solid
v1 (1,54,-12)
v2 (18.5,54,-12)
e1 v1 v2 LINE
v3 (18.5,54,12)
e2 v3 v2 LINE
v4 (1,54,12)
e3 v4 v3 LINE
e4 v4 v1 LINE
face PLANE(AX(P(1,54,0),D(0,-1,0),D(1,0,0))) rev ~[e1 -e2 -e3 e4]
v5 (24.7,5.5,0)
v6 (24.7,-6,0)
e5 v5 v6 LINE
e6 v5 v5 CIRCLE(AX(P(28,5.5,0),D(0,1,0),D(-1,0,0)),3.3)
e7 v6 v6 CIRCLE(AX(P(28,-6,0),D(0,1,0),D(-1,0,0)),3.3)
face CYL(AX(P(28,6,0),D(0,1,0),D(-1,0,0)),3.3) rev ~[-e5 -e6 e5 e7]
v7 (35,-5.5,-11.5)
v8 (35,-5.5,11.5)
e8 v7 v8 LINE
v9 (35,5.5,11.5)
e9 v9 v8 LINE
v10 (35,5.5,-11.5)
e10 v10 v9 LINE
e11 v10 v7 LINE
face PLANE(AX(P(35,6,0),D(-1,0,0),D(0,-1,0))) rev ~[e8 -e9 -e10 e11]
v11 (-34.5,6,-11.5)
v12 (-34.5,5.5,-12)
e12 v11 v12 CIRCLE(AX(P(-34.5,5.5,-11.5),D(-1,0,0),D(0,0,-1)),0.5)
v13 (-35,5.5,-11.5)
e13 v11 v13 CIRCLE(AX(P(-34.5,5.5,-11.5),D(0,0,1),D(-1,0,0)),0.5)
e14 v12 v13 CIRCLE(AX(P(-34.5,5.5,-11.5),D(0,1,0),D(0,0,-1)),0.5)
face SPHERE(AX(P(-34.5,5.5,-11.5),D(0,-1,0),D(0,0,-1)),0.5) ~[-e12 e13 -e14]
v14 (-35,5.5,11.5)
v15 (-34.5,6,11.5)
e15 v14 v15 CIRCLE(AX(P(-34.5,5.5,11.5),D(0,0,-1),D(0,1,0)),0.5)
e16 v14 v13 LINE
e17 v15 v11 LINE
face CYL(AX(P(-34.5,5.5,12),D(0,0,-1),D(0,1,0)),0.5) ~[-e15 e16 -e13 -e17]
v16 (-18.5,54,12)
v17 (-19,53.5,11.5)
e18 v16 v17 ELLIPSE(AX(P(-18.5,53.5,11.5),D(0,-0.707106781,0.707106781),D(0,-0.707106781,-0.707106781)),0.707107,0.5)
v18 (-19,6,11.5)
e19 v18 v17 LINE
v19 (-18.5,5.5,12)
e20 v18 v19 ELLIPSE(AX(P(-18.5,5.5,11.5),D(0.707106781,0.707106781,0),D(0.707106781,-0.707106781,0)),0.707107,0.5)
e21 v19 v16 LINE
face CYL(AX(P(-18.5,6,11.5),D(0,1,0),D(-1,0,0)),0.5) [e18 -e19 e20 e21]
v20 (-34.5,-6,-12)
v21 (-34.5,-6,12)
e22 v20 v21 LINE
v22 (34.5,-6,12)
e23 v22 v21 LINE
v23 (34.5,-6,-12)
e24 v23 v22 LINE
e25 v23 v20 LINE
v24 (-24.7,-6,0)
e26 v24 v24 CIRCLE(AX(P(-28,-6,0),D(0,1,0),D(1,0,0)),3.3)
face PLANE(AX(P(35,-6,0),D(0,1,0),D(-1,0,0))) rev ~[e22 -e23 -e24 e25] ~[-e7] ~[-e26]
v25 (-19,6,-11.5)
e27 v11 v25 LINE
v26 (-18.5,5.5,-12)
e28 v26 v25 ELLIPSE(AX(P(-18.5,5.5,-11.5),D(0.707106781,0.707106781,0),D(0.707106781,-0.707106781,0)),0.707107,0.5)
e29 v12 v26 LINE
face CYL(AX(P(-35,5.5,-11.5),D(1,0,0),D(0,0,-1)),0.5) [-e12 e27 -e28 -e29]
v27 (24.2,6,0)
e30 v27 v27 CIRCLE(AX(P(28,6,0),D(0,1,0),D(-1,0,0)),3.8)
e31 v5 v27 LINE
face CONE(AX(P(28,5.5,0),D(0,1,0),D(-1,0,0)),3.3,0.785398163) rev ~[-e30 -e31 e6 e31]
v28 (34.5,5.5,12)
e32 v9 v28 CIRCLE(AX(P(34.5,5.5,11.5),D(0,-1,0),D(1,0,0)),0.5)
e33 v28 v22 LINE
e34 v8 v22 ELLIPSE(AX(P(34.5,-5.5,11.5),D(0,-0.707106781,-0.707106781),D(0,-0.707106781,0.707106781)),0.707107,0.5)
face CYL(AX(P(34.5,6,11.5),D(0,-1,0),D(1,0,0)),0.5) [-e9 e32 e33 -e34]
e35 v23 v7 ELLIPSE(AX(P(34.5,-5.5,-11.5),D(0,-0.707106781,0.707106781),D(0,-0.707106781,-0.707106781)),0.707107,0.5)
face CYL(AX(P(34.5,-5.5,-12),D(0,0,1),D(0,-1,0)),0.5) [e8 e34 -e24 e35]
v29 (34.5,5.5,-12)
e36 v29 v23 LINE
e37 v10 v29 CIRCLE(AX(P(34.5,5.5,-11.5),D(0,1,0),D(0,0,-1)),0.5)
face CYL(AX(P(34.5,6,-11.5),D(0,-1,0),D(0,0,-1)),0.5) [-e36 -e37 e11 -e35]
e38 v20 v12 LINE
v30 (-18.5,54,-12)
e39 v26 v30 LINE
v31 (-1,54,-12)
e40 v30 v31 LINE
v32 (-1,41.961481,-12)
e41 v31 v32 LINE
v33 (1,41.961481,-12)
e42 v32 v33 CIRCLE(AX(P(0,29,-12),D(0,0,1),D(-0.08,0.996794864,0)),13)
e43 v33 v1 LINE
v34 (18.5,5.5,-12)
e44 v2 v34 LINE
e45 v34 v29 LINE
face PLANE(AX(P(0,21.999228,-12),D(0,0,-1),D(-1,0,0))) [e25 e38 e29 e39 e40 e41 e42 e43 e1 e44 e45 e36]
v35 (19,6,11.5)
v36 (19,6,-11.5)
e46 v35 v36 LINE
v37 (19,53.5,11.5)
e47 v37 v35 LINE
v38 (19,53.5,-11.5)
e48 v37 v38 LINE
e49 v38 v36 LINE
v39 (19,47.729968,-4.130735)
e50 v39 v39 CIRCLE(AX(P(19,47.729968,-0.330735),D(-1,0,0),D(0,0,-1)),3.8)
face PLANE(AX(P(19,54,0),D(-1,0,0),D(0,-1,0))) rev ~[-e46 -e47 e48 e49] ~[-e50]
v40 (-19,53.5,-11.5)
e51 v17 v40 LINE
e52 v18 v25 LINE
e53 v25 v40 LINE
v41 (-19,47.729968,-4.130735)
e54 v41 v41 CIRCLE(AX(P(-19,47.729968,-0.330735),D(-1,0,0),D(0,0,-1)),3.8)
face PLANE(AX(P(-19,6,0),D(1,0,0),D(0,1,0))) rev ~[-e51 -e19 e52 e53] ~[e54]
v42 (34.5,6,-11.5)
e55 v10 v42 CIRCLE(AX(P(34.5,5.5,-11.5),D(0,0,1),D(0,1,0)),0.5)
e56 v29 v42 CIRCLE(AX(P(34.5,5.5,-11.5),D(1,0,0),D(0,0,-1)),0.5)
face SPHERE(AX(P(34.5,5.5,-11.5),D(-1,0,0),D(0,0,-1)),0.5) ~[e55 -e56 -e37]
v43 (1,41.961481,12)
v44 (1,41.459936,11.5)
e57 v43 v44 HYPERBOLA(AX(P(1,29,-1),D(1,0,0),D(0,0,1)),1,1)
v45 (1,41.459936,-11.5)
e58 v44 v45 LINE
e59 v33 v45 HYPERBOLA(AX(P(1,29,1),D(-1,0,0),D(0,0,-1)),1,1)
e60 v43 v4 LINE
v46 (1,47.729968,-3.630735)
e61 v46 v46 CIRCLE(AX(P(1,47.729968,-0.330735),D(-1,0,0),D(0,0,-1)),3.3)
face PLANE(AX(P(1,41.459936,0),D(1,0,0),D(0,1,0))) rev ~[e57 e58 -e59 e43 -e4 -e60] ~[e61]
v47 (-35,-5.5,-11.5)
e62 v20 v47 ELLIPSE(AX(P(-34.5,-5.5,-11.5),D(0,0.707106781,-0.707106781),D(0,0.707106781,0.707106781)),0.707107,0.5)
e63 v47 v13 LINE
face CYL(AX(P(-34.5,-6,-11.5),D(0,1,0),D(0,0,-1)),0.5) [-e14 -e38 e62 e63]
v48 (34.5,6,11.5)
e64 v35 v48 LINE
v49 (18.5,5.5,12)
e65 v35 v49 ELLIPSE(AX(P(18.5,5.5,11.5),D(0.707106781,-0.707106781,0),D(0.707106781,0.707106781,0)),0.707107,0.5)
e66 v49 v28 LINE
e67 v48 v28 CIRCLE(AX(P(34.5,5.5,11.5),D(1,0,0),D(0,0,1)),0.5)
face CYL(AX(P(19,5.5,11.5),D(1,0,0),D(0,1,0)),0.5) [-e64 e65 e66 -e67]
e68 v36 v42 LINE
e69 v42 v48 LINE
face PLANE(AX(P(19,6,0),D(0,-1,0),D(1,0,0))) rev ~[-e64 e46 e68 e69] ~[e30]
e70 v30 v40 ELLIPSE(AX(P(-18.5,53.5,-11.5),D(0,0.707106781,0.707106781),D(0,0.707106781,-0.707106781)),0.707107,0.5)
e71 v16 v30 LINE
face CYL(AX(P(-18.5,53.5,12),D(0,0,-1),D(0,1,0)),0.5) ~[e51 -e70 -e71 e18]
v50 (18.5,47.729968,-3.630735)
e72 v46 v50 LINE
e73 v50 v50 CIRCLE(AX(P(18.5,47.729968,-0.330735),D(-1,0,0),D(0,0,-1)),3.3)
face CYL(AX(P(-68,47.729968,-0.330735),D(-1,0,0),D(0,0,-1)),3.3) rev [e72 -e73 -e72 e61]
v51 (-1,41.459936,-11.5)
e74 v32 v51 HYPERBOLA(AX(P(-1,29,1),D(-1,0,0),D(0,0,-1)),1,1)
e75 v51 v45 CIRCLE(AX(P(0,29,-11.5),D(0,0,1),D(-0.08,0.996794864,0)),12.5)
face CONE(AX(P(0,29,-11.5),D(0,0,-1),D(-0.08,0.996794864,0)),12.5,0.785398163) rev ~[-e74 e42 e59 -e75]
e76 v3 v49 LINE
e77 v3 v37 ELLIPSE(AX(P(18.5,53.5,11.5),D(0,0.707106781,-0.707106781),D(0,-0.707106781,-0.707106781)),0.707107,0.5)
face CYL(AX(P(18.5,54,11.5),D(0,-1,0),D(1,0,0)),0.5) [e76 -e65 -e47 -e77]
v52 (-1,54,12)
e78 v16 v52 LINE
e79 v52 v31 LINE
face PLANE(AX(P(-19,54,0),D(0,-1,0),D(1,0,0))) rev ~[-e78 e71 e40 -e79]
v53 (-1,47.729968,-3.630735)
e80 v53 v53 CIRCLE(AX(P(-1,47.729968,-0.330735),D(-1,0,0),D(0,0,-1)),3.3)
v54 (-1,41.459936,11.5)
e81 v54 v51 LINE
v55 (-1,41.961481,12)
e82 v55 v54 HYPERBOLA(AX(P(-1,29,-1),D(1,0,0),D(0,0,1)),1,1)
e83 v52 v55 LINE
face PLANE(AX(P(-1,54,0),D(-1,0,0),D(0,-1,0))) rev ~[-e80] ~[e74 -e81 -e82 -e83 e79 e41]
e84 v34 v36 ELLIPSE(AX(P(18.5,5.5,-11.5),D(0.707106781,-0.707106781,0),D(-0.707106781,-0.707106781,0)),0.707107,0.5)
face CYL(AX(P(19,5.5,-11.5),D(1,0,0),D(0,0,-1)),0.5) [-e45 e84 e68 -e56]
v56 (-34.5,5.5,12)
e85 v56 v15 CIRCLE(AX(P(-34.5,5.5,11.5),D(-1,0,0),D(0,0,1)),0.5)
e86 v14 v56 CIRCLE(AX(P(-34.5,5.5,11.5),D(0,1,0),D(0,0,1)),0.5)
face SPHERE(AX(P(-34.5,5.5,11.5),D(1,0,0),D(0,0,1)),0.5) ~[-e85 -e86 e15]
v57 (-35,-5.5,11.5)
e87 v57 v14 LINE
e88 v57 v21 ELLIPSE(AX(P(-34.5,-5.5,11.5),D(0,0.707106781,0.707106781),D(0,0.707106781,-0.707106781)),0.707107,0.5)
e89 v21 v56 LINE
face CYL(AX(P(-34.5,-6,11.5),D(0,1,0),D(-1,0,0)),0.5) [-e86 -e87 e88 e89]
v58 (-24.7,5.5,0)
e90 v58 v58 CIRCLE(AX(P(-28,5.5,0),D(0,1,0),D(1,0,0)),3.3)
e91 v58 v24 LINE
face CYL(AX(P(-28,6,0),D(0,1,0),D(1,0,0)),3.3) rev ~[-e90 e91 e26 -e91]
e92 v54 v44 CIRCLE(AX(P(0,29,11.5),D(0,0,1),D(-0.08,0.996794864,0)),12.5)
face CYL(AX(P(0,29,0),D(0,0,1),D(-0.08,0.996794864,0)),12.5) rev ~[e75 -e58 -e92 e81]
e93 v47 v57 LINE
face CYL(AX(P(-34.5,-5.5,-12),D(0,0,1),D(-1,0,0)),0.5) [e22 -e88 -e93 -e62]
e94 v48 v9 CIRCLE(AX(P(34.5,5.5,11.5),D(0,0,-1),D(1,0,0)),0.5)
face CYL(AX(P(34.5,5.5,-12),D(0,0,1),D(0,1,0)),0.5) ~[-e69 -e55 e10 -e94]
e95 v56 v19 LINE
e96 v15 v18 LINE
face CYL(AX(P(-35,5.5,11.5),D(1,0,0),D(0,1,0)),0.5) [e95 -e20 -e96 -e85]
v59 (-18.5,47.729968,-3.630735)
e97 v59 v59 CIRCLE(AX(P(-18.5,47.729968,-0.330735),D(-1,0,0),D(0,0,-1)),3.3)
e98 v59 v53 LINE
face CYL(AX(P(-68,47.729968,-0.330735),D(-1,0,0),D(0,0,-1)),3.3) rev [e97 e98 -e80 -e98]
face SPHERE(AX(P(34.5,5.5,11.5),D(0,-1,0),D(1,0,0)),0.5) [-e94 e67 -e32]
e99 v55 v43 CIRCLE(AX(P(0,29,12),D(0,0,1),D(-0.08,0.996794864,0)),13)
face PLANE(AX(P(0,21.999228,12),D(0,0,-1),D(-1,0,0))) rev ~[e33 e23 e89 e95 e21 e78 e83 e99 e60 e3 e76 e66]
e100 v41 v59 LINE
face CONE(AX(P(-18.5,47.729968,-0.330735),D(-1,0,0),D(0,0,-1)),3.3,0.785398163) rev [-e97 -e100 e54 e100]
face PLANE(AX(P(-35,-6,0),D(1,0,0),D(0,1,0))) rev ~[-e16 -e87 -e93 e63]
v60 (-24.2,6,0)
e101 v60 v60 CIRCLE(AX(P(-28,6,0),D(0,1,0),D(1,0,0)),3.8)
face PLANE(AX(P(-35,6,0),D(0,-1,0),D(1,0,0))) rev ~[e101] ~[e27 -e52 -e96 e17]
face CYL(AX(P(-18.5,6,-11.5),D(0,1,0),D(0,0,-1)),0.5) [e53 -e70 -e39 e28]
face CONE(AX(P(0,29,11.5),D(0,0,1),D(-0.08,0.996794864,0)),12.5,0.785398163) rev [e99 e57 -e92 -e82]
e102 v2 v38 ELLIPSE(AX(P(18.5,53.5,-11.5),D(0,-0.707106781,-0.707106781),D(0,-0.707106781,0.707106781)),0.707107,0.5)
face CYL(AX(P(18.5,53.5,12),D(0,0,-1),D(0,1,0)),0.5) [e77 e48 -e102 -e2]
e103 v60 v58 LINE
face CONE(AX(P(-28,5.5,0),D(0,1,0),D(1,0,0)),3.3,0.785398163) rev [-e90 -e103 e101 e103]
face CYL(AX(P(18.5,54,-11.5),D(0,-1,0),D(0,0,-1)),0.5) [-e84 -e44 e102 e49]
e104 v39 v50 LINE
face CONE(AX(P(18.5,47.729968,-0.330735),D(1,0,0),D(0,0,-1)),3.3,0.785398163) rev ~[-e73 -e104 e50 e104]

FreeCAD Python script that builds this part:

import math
import FreeCAD as App
import Part
import Sketcher
Q = App.Units.Quantity


def edges_at(feature, points):
    """Names of the edges that pass closest to the given points."""
    edges = feature.Shape.Edges
    near = lambda p: min(range(len(edges)), key=lambda i: edges[i].distToShape(Part.Vertex(*p))[0])
    return sorted({f"Edge{near(p) + 1}" for p in points})

doc = App.newDocument("Part")
body = doc.addObject("PartDesign::Body", "Body")

sketch1 = doc.addObject("Sketcher::SketchObject", "Sketch")
body.addObject(sketch1)
sketch1.AttachmentSupport = (doc.XY_Plane, [""])
sketch1.MapMode = "FlatFace"
sketch1.addGeometry(Part.LineSegment(App.Vector(-35, 6, 0), App.Vector(-35, -6, 0)), False)
sketch1.addGeometry(Part.LineSegment(App.Vector(-35, -6, 0), App.Vector(35, -6, 0)), False)
sketch1.addGeometry(Part.LineSegment(App.Vector(35, -6, 0), App.Vector(35, 6, 0)), False)
sketch1.addGeometry(Part.LineSegment(App.Vector(35, 6, 0), App.Vector(19, 6, 0)), False)
sketch1.addGeometry(Part.LineSegment(App.Vector(19, 6, 0), App.Vector(19, 54, 0)), False)
sketch1.addGeometry(Part.LineSegment(App.Vector(19, 54, 0), App.Vector(1, 54, 0)), False)
sketch1.addGeometry(Part.LineSegment(App.Vector(1, 54, 0), App.Vector(1, 41.459936, 0)), False)
sketch1.addGeometry(Part.ArcOfCircle(Part.Circle(App.Vector(0, 29, 0), App.Vector(0, 0, 1), 12.5), math.radians(94.588566), math.radians(445.411434)), False)
sketch1.addGeometry(Part.LineSegment(App.Vector(-1, 41.459936, 0), App.Vector(-1, 54, 0)), False)
sketch1.addGeometry(Part.LineSegment(App.Vector(-1, 54, 0), App.Vector(-19, 54, 0)), False)
sketch1.addGeometry(Part.LineSegment(App.Vector(-19, 54, 0), App.Vector(-19, 6, 0)), False)
sketch1.addGeometry(Part.LineSegment(App.Vector(-19, 6, 0), App.Vector(-35, 6, 0)), False)
sketch1.addConstraint(Sketcher.Constraint("Coincident", 0, 2, 1, 1))
sketch1.addConstraint(Sketcher.Constraint("Coincident", 1, 2, 2, 1))
sketch1.addConstraint(Sketcher.Constraint("Coincident", 2, 2, 3, 1))
sketch1.addConstraint(Sketcher.Constraint("Coincident", 3, 2, 4, 1))
sketch1.addConstraint(Sketcher.Constraint("Coincident", 4, 2, 5, 1))
sketch1.addConstraint(Sketcher.Constraint("Coincident", 5, 2, 6, 1))
sketch1.addConstraint(Sketcher.Constraint("Coincident", 6, 2, 7, 2))
sketch1.addConstraint(Sketcher.Constraint("Coincident", 7, 1, 8, 1))
sketch1.addConstraint(Sketcher.Constraint("Coincident", 8, 2, 9, 1))
sketch1.addConstraint(Sketcher.Constraint("Coincident", 9, 2, 10, 1))
sketch1.addConstraint(Sketcher.Constraint("Coincident", 10, 2, 11, 1))
sketch1.addConstraint(Sketcher.Constraint("Coincident", 11, 2, 0, 1))
sketch1.addConstraint(Sketcher.Constraint("Vertical", 0))
sketch1.addConstraint(Sketcher.Constraint("Horizontal", 1))
sketch1.addConstraint(Sketcher.Constraint("Vertical", 2))
sketch1.addConstraint(Sketcher.Constraint("Horizontal", 3))
sketch1.addConstraint(Sketcher.Constraint("Vertical", 4))
sketch1.addConstraint(Sketcher.Constraint("Horizontal", 5))
sketch1.addConstraint(Sketcher.Constraint("Vertical", 6))
sketch1.addConstraint(Sketcher.Constraint("Vertical", 8))
sketch1.addConstraint(Sketcher.Constraint("Horizontal", 9))
sketch1.addConstraint(Sketcher.Constraint("Vertical", 10))
sketch1.addConstraint(Sketcher.Constraint("Horizontal", 11))
sketch1.addConstraint(Sketcher.Constraint("Symmetric", 0, 2, 2, 2, -1, 1))
sketch1.addConstraint(Sketcher.Constraint("Symmetric", 6, 2, 7, 1, -2))
sketch1.addConstraint(Sketcher.Constraint("Symmetric", 4, 2, 9, 2, -2))
sketch1.addConstraint(Sketcher.Constraint("Horizontal", 3, 2, 10, 2))
sketch1.addConstraint(Sketcher.Constraint("Radius", 7, Q("12.5 mm")))
sketch1.addConstraint(Sketcher.Constraint("DistanceX", 1, 1, 1, 2, Q("70 mm")))
sketch1.addConstraint(Sketcher.Constraint("DistanceX", 3, 2, 3, 1, Q("16 mm")))
sketch1.addConstraint(Sketcher.Constraint("DistanceX", 5, 2, 5, 1, Q("18 mm")))
sketch1.addConstraint(Sketcher.Constraint("DistanceY", 0, 2, 0, 1, Q("12 mm")))
sketch1.addConstraint(Sketcher.Constraint("DistanceY", 4, 1, 4, 2, Q("48 mm")))
sketch1.addConstraint(Sketcher.Constraint("DistanceY", -1, 1, 7, 3, Q("29 mm")))
pad1 = doc.addObject("PartDesign::Pad", "Pad")
body.addObject(pad1)
pad1.Profile = sketch1
pad1.Length = 24
pad1.Midplane = True

sketch2 = doc.addObject("Sketcher::SketchObject", "Sketch001")
body.addObject(sketch2)
sketch2.AttachmentSupport = (doc.XZ_Plane, [""])
sketch2.MapMode = "FlatFace"
sketch2.AttachmentOffset = App.Placement(App.Vector(0, 0, -6), App.Rotation())
sketch2.addGeometry(Part.Circle(App.Vector(28, 0, 0), App.Vector(0, 0, 1), 3.3), False)
sketch2.addGeometry(Part.Circle(App.Vector(-28, 0, 0), App.Vector(0, 0, 1), 3.3), False)
sketch2.addConstraint(Sketcher.Constraint("Equal", 0, 1))
sketch2.addConstraint(Sketcher.Constraint("Symmetric", 0, 3, 1, 3, -1, 1))
sketch2.addConstraint(Sketcher.Constraint("PointOnObject", 0, 3, -1))
sketch2.addConstraint(Sketcher.Constraint("Diameter", 0, Q("6.6 mm")))
sketch2.addConstraint(Sketcher.Constraint("DistanceX", -1, 1, 0, 3, Q("28 mm")))
pocket1 = doc.addObject("PartDesign::Pocket", "Pocket")
body.addObject(pocket1)
pocket1.Profile = sketch2
pocket1.Type = "ThroughAll"
pocket1.Reversed = True

sketch3 = doc.addObject("Sketcher::SketchObject", "Sketch002")
body.addObject(sketch3)
sketch3.AttachmentSupport = (doc.YZ_Plane, [""])
sketch3.MapMode = "FlatFace"
sketch3.AttachmentOffset = App.Placement(App.Vector(0, 0, -1), App.Rotation())
sketch3.addGeometry(Part.Circle(App.Vector(47.729968, -0.330735, 0), App.Vector(0, 0, 1), 3.3), False)
sketch3.addConstraint(Sketcher.Constraint("Diameter", 0, Q("6.6 mm")))
sketch3.addConstraint(Sketcher.Constraint("DistanceX", -1, 1, 0, 3, Q("47.729968 mm")))
sketch3.addConstraint(Sketcher.Constraint("DistanceY", 0, 3, -1, 1, Q("0.330735 mm")))
pocket2 = doc.addObject("PartDesign::Pocket", "Pocket001")
body.addObject(pocket2)
pocket2.Profile = sketch3
pocket2.Type = "ThroughAll"
pocket2.Midplane = True
doc.recompute()

chamfer = doc.addObject("PartDesign::Chamfer", "Chamfer")
body.addObject(chamfer)
chamfer.Base = (pocket2, edges_at(pocket2, [
    (0, 16.5, -12),
    (0, 16.5, 12),
    (31.3, 6, 0),
    (-31.3, 6, 0),
    (-19, 47.73, 2.969),
    (19, 47.73, 2.969),
]))
chamfer.Size = 0.5
doc.recompute()

fillet = doc.addObject("PartDesign::Fillet", "Fillet")
body.addObject(fillet)
fillet.Base = (chamfer, edges_at(chamfer, [
    (-27, 6, 12),
    (19, 30, -12),
    (27, 6, -12),
    (-35, 0, 12),
    (35, 0, -12),
    (-35, 0, -12),
    (-27, 6, -12),
    (-19, 30, -12),
    (35, 0, 12),
    (19, 54, 0),
    (35, 6, 0),
    (35, -6, 0),
    (-35, -6, 0),
    (-35, 6, 0),
    (-19, 54, 0),
    (27, 6, 12),
    (19, 30, 12),
    (-19, 30, 12),
]))
fillet.Radius = 0.5

doc.recompute()
